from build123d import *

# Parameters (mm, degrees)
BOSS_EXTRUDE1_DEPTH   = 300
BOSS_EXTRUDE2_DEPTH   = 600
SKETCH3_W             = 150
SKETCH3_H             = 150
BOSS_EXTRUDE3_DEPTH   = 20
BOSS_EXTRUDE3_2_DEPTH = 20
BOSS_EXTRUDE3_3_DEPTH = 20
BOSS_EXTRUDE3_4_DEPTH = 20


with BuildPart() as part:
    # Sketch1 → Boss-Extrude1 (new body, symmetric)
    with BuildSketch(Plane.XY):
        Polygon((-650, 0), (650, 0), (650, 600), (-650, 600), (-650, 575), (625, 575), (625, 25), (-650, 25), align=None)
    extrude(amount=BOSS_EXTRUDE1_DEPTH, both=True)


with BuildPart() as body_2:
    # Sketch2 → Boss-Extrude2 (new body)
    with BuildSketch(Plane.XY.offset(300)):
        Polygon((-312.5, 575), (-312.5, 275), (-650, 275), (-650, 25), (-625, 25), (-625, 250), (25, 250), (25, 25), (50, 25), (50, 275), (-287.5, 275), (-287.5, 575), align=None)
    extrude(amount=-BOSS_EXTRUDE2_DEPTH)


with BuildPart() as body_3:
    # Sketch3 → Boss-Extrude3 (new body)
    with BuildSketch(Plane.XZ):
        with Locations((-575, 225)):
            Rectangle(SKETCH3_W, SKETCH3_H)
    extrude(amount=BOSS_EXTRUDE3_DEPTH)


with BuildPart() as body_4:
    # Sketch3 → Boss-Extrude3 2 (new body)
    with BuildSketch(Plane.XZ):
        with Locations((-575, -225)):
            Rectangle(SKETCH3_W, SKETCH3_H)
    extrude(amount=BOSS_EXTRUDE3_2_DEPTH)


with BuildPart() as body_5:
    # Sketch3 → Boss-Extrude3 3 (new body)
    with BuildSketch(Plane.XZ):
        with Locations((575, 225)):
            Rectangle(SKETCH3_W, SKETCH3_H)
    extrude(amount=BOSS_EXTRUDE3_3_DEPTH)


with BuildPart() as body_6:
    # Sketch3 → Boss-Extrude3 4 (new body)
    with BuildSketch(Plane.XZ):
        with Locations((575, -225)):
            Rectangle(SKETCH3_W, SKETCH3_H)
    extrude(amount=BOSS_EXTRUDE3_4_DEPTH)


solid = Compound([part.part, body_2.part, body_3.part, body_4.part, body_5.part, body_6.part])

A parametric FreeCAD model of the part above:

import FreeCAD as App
import Part
import Sketcher
from FreeCAD import Vector


def add_polygon(sketch, points):
    """Adds a closed chain of lines whose ends are joined by coincident constraints."""
    first, n = sketch.GeometryCount, len(points)
    for a, b in zip(points, points[1:] + points[:1]):
        sketch.addGeometry(Part.LineSegment(App.Vector(*a, 0), App.Vector(*b, 0)), False)
    for i in range(n):
        sketch.addConstraint(Sketcher.Constraint("Coincident", first + i, 2, first + (i + 1) % n, 1))

doc = App.newDocument("Part")
body = doc.addObject("PartDesign::Body", "Body")

sketch1 = body.newObject("Sketcher::SketchObject", "Sketch")
sketch1.AttachmentSupport = (doc.getObject("XY_Plane"), [""])
sketch1.MapMode = "FlatFace"
add_polygon(sketch1, [(-650, 0), (650, 0), (650, 600), (-650, 600), (-650, 575), (625, 575), (625, 25), (-650, 25)])
sketch1.addConstraint([
    Sketcher.Constraint("Horizontal", 0),
    Sketcher.Constraint("Vertical", 1),
    Sketcher.Constraint("Horizontal", 2),
    Sketcher.Constraint("Vertical", 3),
    Sketcher.Constraint("Horizontal", 4),
    Sketcher.Constraint("Vertical", 5),
    Sketcher.Constraint("Horizontal", 6),
    Sketcher.Constraint("Vertical", 7),
    Sketcher.Constraint("Symmetric", 0, 2, 7, 2, -1, 1),
    Sketcher.Constraint("Vertical", 3, 2, 6, 2),
    Sketcher.Constraint("Equal", 3, 7),
    Sketcher.Constraint("DistanceX", 0, 1, 0, 2, 1300.0),
    Sketcher.Constraint("DistanceX", 4, 1, 4, 2, 1275.0),
    Sketcher.Constraint("DistanceY", 1, 1, 1, 2, 600.0),
    Sketcher.Constraint("DistanceY", 3, 2, 3, 1, 25.0),
])
pad1 = body.newObject("PartDesign::Pad", "Pad")
pad1.Profile = sketch1
pad1.Length = 600
pad1.Midplane = True
body2 = doc.addObject("PartDesign::Body", "Body001")

sketch2 = body2.newObject("Sketcher::SketchObject", "Sketch001")
sketch2.AttachmentSupport = (doc.getObject("XY_Plane001"), [""])
sketch2.MapMode = "FlatFace"
sketch2.AttachmentOffset = App.Placement(Vector(0, 0, 300), App.Rotation())
add_polygon(sketch2, [(-312, 575), (-312, 275), (-650, 275), (-650, 25), (-625, 25), (-625, 250), (25, 250), (25, 25), (50, 25), (50, 275), (-288, 275), (-288, 575)])
sketch2.addConstraint([
    Sketcher.Constraint("Vertical", 0),
    Sketcher.Constraint("Horizontal", 1),
    Sketcher.Constraint("Vertical", 2),
    Sketcher.Constraint("Horizontal", 3),
    Sketcher.Constraint("Vertical", 4),
    Sketcher.Constraint("Horizontal", 5),
    Sketcher.Constraint("Vertical", 6),
    Sketcher.Constraint("Horizontal", 7),
    Sketcher.Constraint("Vertical", 8),
    Sketcher.Constraint("Horizontal", 9),
    Sketcher.Constraint("Vertical", 10),
    Sketcher.Constraint("Horizontal", 11),
    Sketcher.Constraint("Horizontal", 3, 2, 6, 2),
    Sketcher.Constraint("Horizontal", 1, 2, 8, 2),
    Sketcher.Constraint("Equal", 3, 7),
    Sketcher.Constraint("Equal", 1, 9),
    Sketcher.Constraint("Equal", 7, 11),
    Sketcher.Constraint("DistanceX", 3, 1, 3, 2, 25.0),
    Sketcher.Constraint("DistanceX", 5, 1, 5, 2, 650.0),
    Sketcher.Constraint("DistanceY", 0, 2, 0, 1, 300.0),
    Sketcher.Constraint("DistanceY", 2, 2, 2, 1, 250.0),
    Sketcher.Constraint("DistanceY", 4, 1, 4, 2, 225.0),
    Sketcher.Constraint("DistanceY", -1, 1, 0, 2, 275.0),
    Sketcher.Constraint("DistanceX", 1, 2, -1, 1, 650.0),
])
pad2 = body2.newObject("PartDesign::Pad", "Pad001")
pad2.Profile = sketch2
pad2.Length = 600
pad2.Reversed = True
body3 = doc.addObject("PartDesign::Body", "Body002")

sketch3 = body3.newObject("Sketcher::SketchObject", "Sketch002")
sketch3.AttachmentSupport = (doc.getObject("XZ_Plane002"), [""])
sketch3.MapMode = "FlatFace"
add_polygon(sketch3, [(-650, 300), (-650, 150), (-500, 150), (-500, 300)])
sketch3.addConstraint([
    Sketcher.Constraint("Vertical", 0),
    Sketcher.Constraint("Horizontal", 1),
    Sketcher.Constraint("Vertical", 2),
    Sketcher.Constraint("Horizontal", 3),
    Sketcher.Constraint("Equal", 3, 0),
    Sketcher.Constraint("DistanceX", 1, 1, 1, 2, 150.0),
    Sketcher.Constraint("DistanceX", 0, 2, -1, 1, 650.0),
    Sketcher.Constraint("DistanceY", -1, 1, 0, 2, 150.0),
])
pad3 = body3.newObject("PartDesign::Pad", "Pad002")
pad3.Profile = sketch3
pad3.Length = 20
body4 = doc.addObject("PartDesign::Body", "Body003")

sketch4 = body4.newObject("Sketcher::SketchObject", "Sketch003")
sketch4.AttachmentSupport = (doc.getObject("XZ_Plane003"), [""])
sketch4.MapMode = "FlatFace"
add_polygon(sketch4, [(-650, -150), (-650, -300), (-500, -300), (-500, -150)])
sketch4.addConstraint([
    Sketcher.Constraint("Vertical", 0),
    Sketcher.Constraint("Horizontal", 1),
    Sketcher.Constraint("Vertical", 2),
    Sketcher.Constraint("Horizontal", 3),
    Sketcher.Constraint("Equal", 3, 0),
    Sketcher.Constraint("DistanceX", 1, 1, 1, 2, 150.0),
    Sketcher.Constraint("DistanceX", 0, 2, -1, 1, 650.0),
    Sketcher.Constraint("DistanceY", 0, 2, -1, 1, 300.0),
])
pad4 = body4.newObject("PartDesign::Pad", "Pad003")
pad4.Profile = sketch4
pad4.Length = 20
body5 = doc.addObject("PartDesign::Body", "Body004")

sketch5 = body5.newObject("Sketcher::SketchObject", "Sketch004")
sketch5.AttachmentSupport = (doc.getObject("XZ_Plane004"), [""])
sketch5.MapMode = "FlatFace"
add_polygon(sketch5, [(500, 300), (500, 150), (650, 150), (650, 300)])
sketch5.addConstraint([
    Sketcher.Constraint("Vertical", 0),
    Sketcher.Constraint("Horizontal", 1),
    Sketcher.Constraint("Vertical", 2),
    Sketcher.Constraint("Horizontal", 3),
    Sketcher.Constraint("Equal", 3, 0),
    Sketcher.Constraint("DistanceX", 1, 1, 1, 2, 150.0),
    Sketcher.Constraint("DistanceX", -1, 1, 0, 2, 500.0),
    Sketcher.Constraint("DistanceY", -1, 1, 0, 2, 150.0),
])
pad5 = body5.newObject("PartDesign::Pad", "Pad004")
pad5.Profile = sketch5
pad5.Length = 20
body6 = doc.addObject("PartDesign::Body", "Body005")

sketch6 = body6.newObject("Sketcher::SketchObject", "Sketch005")
sketch6.AttachmentSupport = (doc.getObject("XZ_Plane005"), [""])
sketch6.MapMode = "FlatFace"
add_polygon(sketch6, [(500, -150), (500, -300), (650, -300), (650, -150)])
sketch6.addConstraint([
    Sketcher.Constraint("Vertical", 0),
    Sketcher.Constraint("Horizontal", 1),
    Sketcher.Constraint("Vertical", 2),
    Sketcher.Constraint("Horizontal", 3),
    Sketcher.Constraint("Equal", 3, 0),
    Sketcher.Constraint("DistanceX", 1, 1, 1, 2, 150.0),
    Sketcher.Constraint("DistanceX", -1, 1, 0, 2, 500.0),
    Sketcher.Constraint("DistanceY", 0, 2, -1, 1, 300.0),
])
pad6 = body6.newObject("PartDesign::Pad", "Pad005")
pad6.Profile = sketch6
pad6.Length = 20

doc.recompute()
